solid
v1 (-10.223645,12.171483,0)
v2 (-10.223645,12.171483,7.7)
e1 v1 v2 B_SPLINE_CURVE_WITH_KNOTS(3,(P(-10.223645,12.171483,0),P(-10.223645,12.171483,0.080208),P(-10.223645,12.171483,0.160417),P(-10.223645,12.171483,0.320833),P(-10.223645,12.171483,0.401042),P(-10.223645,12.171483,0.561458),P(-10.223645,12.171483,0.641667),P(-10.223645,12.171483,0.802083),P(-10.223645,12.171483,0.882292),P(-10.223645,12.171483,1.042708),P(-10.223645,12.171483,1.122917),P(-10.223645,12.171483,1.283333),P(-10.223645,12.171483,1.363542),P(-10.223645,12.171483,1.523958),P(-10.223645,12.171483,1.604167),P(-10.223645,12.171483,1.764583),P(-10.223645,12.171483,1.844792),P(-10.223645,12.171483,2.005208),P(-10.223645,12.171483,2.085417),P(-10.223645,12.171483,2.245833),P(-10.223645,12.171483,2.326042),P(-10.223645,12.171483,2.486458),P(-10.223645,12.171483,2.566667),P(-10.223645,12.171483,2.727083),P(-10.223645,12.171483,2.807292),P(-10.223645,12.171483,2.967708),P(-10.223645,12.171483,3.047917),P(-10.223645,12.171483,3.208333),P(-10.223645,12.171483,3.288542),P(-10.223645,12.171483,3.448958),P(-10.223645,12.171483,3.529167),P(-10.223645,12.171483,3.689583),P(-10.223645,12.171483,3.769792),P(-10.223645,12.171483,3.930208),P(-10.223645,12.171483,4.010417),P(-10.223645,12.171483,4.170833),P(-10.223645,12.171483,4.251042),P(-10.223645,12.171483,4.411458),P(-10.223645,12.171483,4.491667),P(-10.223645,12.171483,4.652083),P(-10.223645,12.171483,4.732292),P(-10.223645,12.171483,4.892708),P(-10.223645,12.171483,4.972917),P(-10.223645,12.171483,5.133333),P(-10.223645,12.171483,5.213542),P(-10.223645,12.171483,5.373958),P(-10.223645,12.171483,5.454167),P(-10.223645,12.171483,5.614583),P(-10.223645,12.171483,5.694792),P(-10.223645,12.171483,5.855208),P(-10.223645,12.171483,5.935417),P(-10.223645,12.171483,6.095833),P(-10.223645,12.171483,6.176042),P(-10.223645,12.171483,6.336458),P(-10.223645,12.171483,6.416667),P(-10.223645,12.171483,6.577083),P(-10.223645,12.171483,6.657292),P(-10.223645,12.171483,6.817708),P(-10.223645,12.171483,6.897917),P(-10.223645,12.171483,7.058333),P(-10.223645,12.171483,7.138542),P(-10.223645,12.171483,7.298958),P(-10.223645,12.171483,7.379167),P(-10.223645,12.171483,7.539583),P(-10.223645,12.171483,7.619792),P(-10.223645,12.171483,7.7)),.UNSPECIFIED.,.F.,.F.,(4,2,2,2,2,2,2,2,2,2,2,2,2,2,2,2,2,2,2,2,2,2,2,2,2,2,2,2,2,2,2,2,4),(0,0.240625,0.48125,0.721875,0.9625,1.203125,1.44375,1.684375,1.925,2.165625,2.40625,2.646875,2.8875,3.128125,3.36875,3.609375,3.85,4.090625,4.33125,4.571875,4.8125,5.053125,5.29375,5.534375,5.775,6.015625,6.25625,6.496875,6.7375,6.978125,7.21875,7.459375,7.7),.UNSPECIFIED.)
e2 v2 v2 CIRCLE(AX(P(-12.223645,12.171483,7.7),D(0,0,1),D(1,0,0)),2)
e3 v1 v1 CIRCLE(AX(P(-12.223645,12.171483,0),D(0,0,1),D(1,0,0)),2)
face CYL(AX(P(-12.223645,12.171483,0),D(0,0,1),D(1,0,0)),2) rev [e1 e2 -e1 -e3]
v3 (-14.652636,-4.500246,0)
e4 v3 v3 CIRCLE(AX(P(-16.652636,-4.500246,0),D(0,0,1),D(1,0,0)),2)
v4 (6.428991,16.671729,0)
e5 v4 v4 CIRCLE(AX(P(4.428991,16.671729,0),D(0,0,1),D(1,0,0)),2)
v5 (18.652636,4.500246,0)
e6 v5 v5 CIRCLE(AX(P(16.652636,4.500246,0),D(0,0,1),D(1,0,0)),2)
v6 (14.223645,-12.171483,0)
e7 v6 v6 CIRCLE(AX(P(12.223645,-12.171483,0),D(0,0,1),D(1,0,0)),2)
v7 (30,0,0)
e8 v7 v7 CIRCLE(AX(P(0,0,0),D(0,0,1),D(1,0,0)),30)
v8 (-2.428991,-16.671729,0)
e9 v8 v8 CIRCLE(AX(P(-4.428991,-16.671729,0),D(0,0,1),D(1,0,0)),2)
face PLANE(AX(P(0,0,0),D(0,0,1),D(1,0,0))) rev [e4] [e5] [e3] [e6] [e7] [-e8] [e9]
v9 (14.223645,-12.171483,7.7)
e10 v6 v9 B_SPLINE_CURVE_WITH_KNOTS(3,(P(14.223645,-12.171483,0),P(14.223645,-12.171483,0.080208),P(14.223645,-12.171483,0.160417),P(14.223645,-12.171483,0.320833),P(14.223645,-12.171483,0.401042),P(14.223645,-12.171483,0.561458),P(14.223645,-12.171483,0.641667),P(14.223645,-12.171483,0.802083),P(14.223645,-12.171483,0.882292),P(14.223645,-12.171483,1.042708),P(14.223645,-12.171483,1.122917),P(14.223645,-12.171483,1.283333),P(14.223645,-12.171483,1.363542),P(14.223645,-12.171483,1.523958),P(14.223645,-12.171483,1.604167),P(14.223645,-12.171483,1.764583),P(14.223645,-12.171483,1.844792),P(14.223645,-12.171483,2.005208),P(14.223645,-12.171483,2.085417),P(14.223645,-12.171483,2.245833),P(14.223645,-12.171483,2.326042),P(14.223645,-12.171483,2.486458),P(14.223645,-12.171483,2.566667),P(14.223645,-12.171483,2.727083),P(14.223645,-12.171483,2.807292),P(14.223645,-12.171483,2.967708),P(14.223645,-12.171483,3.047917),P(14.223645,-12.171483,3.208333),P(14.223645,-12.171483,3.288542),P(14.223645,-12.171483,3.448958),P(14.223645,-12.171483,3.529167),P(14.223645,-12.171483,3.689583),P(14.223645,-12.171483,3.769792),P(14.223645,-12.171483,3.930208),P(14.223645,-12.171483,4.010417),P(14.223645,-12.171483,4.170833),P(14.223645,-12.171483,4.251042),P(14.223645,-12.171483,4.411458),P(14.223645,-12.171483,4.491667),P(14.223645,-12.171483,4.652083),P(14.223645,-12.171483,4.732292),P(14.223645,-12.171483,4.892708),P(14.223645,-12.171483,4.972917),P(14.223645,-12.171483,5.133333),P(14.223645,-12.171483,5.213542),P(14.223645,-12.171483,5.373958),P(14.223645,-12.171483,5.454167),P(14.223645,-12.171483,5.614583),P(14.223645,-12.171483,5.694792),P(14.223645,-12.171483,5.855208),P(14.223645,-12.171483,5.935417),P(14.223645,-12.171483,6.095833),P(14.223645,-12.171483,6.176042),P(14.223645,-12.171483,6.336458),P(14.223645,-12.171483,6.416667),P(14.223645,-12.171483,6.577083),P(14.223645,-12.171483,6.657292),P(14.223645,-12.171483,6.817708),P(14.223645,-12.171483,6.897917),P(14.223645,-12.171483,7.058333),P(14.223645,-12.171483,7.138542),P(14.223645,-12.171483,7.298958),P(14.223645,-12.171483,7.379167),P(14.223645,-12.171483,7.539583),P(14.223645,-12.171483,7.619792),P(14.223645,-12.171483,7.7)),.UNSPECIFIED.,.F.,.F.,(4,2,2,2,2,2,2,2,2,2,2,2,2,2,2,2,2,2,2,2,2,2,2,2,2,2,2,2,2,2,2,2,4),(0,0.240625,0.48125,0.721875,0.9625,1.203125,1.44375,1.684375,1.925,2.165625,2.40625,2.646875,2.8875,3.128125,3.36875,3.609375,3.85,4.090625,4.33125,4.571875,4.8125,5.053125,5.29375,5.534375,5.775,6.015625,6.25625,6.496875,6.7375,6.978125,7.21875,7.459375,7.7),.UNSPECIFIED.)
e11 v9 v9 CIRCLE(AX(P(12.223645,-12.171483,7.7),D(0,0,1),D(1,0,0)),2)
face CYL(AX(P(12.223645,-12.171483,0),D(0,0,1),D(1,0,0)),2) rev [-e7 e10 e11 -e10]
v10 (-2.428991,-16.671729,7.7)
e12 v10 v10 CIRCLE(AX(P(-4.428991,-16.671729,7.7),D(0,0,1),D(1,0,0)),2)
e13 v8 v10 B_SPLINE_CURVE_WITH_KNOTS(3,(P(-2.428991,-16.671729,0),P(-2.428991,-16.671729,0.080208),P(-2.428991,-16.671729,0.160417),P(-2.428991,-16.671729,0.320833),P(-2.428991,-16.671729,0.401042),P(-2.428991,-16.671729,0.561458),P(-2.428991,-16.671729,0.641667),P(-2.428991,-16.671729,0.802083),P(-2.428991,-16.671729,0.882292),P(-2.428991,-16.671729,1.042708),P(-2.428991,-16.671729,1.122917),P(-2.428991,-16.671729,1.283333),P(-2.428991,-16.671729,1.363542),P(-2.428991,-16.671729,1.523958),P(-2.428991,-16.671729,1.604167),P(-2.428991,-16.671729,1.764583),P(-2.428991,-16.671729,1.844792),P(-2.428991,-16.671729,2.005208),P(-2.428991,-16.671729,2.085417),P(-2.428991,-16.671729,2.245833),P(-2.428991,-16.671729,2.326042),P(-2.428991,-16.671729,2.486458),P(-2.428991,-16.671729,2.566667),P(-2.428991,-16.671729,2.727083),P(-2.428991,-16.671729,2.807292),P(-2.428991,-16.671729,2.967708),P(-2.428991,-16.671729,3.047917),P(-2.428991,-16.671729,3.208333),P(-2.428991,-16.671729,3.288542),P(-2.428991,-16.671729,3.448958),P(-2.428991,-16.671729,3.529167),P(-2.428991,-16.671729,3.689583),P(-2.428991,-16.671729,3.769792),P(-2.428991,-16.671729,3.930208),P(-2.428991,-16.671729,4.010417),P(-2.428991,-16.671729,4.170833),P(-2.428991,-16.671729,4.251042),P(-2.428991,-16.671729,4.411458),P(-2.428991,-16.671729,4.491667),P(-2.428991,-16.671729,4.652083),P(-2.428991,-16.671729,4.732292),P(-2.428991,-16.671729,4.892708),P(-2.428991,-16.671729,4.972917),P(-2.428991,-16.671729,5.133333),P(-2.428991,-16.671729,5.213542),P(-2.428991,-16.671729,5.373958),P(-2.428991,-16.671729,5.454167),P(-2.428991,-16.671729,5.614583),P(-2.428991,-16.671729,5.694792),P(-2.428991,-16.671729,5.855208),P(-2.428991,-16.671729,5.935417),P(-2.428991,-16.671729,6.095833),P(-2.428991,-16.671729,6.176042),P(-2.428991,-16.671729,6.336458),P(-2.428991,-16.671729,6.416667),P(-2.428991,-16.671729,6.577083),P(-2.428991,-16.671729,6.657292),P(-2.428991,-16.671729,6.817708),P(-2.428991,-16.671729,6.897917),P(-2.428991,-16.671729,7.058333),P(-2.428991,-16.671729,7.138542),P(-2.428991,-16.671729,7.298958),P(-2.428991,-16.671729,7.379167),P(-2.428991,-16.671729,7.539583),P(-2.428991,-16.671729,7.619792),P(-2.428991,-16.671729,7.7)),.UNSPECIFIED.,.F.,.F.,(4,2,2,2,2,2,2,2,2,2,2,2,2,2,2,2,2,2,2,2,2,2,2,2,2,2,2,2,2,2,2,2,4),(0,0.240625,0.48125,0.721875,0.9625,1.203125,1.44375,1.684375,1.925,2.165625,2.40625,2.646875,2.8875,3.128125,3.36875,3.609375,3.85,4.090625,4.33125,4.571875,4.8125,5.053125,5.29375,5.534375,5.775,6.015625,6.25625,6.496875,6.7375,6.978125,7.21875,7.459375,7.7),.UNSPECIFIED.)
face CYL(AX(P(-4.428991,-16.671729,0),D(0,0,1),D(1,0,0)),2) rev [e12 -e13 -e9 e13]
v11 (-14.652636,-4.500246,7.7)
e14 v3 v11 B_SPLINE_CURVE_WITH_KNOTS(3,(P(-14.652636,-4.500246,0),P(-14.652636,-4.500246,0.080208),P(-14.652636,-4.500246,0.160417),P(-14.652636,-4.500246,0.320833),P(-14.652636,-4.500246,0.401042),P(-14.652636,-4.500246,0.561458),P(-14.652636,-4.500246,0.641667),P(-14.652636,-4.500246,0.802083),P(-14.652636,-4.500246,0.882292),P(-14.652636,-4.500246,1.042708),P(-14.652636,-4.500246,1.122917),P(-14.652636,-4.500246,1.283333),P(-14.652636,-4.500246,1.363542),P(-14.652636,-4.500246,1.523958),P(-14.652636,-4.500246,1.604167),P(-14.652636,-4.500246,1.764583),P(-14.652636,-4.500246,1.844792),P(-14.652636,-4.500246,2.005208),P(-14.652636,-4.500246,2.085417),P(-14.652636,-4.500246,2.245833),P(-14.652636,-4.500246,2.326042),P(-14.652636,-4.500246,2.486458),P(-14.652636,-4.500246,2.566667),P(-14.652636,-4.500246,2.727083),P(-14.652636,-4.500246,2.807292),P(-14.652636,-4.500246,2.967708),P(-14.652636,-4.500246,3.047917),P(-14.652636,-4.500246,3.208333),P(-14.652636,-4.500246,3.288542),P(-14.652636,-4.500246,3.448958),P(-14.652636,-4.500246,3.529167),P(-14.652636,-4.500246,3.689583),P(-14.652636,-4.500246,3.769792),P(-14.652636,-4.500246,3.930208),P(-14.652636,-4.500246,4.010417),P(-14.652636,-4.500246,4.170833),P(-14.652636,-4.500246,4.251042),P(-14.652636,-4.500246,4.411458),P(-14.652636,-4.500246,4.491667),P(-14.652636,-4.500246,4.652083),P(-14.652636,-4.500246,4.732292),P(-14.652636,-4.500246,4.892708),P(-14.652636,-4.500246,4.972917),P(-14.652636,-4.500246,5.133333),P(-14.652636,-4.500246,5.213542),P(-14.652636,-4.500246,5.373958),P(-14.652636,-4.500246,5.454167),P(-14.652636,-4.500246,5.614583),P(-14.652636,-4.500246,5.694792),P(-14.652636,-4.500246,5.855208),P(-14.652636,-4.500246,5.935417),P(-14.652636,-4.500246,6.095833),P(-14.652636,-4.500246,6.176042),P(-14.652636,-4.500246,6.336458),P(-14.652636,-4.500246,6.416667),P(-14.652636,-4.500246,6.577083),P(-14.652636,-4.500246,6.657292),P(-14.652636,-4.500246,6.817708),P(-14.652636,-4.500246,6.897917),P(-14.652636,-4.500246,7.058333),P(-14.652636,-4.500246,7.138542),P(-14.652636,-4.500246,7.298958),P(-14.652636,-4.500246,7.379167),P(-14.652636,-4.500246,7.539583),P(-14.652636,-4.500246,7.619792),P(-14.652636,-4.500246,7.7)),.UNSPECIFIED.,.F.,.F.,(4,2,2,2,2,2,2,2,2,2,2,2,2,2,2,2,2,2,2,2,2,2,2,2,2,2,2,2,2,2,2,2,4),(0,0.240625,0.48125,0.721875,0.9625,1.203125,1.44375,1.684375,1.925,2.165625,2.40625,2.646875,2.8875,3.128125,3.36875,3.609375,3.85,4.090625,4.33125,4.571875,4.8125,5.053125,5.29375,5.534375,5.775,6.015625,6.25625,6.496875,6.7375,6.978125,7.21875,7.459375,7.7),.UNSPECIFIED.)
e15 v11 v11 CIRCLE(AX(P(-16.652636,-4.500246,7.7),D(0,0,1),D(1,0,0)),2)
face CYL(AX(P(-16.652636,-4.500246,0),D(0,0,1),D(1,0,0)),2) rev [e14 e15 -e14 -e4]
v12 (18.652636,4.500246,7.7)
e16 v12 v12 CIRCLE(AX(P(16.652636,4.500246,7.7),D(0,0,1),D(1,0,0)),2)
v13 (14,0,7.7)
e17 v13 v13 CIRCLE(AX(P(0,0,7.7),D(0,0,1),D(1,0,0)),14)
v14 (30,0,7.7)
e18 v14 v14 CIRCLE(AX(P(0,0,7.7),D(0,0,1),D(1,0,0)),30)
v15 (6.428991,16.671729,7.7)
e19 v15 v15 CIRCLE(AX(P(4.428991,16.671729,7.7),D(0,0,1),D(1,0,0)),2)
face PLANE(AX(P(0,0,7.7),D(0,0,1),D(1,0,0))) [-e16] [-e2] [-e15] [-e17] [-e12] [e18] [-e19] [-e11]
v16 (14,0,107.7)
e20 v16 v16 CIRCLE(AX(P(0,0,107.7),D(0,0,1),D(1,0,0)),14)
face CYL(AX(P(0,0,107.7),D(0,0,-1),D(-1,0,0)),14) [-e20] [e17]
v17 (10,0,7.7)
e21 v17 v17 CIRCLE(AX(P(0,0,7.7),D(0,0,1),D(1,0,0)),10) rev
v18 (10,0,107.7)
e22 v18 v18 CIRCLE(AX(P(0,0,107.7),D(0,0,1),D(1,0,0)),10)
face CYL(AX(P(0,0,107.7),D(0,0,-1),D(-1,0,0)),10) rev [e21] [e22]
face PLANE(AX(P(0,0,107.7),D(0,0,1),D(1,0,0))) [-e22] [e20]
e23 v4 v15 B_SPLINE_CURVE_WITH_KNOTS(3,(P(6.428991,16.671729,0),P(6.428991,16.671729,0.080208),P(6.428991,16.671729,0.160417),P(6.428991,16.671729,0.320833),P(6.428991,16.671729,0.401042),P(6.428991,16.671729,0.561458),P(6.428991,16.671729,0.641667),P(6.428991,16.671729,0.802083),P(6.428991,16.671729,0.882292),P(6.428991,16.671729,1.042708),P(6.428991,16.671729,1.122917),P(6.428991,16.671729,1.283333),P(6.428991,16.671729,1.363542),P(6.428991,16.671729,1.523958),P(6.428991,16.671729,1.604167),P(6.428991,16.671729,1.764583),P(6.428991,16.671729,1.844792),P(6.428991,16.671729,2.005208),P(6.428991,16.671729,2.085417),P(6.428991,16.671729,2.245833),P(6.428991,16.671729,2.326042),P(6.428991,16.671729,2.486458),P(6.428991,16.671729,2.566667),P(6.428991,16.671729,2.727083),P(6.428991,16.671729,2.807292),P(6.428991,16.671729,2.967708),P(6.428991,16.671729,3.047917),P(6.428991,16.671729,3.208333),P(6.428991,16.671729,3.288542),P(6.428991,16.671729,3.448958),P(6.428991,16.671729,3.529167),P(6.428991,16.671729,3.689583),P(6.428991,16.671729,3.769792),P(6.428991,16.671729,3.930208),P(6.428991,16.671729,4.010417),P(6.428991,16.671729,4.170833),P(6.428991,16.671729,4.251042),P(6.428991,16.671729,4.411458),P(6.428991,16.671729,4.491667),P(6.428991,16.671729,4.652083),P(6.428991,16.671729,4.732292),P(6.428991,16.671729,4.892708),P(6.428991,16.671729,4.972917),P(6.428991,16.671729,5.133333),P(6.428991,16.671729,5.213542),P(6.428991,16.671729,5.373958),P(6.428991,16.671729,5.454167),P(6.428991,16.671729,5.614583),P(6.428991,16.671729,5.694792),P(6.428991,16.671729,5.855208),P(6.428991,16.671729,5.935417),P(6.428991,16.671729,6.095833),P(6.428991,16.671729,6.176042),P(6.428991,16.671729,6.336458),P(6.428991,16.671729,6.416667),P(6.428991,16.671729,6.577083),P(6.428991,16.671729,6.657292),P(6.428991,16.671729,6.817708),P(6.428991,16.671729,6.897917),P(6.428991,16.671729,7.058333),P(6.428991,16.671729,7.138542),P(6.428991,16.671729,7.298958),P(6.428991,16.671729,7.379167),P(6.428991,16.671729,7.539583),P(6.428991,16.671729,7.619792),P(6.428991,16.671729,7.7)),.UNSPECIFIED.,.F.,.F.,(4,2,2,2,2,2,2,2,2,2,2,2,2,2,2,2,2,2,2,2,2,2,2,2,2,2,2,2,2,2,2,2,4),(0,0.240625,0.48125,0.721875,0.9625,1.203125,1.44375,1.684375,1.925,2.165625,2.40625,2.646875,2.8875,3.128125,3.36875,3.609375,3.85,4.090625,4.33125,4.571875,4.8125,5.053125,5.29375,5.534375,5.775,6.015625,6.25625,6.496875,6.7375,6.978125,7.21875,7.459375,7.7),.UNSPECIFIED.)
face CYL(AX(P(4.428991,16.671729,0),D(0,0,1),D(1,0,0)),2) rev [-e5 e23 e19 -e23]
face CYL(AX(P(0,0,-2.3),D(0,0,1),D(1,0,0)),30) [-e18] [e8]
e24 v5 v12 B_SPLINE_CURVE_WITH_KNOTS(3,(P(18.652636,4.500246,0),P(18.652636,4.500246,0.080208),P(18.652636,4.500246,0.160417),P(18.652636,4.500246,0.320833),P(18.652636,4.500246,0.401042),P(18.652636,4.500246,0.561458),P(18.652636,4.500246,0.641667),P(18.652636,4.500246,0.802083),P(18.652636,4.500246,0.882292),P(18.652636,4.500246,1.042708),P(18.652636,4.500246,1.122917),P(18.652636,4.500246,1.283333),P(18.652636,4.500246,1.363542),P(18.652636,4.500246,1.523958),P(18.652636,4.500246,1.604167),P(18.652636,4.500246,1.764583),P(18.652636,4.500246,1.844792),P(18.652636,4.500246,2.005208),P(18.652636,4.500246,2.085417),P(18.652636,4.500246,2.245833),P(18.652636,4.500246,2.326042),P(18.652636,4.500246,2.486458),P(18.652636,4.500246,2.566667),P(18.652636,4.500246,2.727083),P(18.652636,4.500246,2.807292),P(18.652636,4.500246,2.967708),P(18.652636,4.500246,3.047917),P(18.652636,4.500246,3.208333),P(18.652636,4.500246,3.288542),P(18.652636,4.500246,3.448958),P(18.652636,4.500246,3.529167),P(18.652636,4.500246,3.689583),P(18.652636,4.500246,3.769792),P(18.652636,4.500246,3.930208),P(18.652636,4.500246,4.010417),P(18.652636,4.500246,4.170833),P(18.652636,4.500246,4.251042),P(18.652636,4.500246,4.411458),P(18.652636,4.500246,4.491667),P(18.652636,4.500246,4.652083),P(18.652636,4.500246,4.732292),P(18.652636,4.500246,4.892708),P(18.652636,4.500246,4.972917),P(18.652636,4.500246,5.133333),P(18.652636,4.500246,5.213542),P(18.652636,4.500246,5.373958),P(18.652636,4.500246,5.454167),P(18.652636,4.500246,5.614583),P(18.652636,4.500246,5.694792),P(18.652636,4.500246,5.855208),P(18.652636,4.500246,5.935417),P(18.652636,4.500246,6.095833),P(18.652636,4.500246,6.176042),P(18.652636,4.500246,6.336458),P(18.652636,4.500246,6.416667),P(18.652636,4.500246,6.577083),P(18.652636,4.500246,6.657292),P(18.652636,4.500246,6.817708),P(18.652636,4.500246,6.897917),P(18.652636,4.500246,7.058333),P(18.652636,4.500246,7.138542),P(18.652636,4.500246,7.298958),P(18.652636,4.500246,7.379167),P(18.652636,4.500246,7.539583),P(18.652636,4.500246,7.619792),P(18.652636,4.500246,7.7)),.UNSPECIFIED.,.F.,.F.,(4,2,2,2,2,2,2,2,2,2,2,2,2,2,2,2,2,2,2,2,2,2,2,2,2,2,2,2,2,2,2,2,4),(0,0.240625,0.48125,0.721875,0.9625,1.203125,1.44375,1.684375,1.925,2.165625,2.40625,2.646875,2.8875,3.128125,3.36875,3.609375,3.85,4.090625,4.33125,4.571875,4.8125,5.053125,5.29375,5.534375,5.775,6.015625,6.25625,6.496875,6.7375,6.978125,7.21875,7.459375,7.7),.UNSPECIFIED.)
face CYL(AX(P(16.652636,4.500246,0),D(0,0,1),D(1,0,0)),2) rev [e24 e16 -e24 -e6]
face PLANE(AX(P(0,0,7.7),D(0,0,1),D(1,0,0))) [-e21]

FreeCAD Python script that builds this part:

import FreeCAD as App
import Part
import Sketcher

V = App.Vector
Q = App.Units.Quantity

doc = App.newDocument("Part")
body = doc.addObject("PartDesign::Body", "Body")

sketch1 = body.newObject("Sketcher::SketchObject", "Sketch")
sketch1.AttachmentSupport = (doc.getObject("XY_Plane"), [""])
sketch1.MapMode = "FlatFace"
sketch1.addGeometry(Part.Circle(V(0, 0, 0), V(0, 0, 1), 50), False)
sketch1.addConstraint([
    Sketcher.Constraint("Coincident", 0, 3, -1, 1),
    Sketcher.Constraint("Diameter", 0, Q("100 mm")),
])
pad1 = body.newObject("PartDesign::Pad", "Pad")
pad1.Profile = sketch1
pad1.Length = 7.7

sketch2 = body.newObject("Sketcher::SketchObject", "Sketch001")
sketch2.AttachmentSupport = (doc.getObject("XY_Plane"), [""])
sketch2.MapMode = "FlatFace"
sketch2.AttachmentOffset = App.Placement(V(0, 0, 7.7), App.Rotation())
sketch2.addGeometry([
    Part.Circle(V(4.428991, 16.671729, 0), V(0, 0, 1), 2),
    Part.Circle(V(16.652636, 4.500246, 0), V(0, 0, 1), 2),
    Part.Circle(V(12.223645, -12.171483, 0), V(0, 0, 1), 2),
    Part.Circle(V(-4.428991, -16.671729, 0), V(0, 0, 1), 2),
    Part.Circle(V(-16.652636, -4.500246, 0), V(0, 0, 1), 2),
    Part.Circle(V(-12.223645, 12.171483, 0), V(0, 0, 1), 2),
], False)
sketch2.addConstraint([
    Sketcher.Constraint("Equal", 0, 1),
    Sketcher.Constraint("Equal", 1, 2),
    Sketcher.Constraint("Equal", 2, 3),
    Sketcher.Constraint("Equal", 3, 4),
    Sketcher.Constraint("Equal", 4, 5),
    Sketcher.Constraint("Symmetric", 0, 3, 3, 3, -1, 1),
    Sketcher.Constraint("Symmetric", 1, 3, 4, 3, -1, 1),
    Sketcher.Constraint("Symmetric", 2, 3, 5, 3, -1, 1),
    Sketcher.Constraint("Diameter", 0, Q("4 mm")),
    Sketcher.Constraint("DistanceX", -1, 1, 0, 3, Q("4.428991 mm")),
    Sketcher.Constraint("DistanceY", -1, 1, 0, 3, Q("16.671729 mm")),
    Sketcher.Constraint("DistanceX", 2, 3, 1, 3, Q("4.428991 mm")),
    Sketcher.Constraint("DistanceY", 2, 3, 1, 3, Q("16.671729 mm")),
    Sketcher.Constraint("DistanceY", 2, 3, 0, 3, Q("28.843212 mm")),
    Sketcher.Constraint("DistanceX", 4, 3, 2, 3, Q("28.876281 mm")),
])
pocket1 = body.newObject("PartDesign::Pocket", "Pocket")
pocket1.Profile = sketch2
pocket1.Length = 7.7

sketch3 = body.newObject("Sketcher::SketchObject", "Sketch002")
sketch3.AttachmentSupport = (doc.getObject("XY_Plane"), [""])
sketch3.MapMode = "FlatFace"
sketch3.AttachmentOffset = App.Placement(V(0, 0, 7.7), App.Rotation())
sketch3.addGeometry([
    Part.Circle(V(0, 0, 0), V(0, 0, 1), 14),
    Part.Circle(V(0, 0, 0), V(0, 0, 1), 10),
], False)
sketch3.addConstraint([
    Sketcher.Constraint("Coincident", 0, 3, -1, 1),
    Sketcher.Constraint("Coincident", 1, 3, -1, 1),
    Sketcher.Constraint("Diameter", 0, Q("28 mm")),
    Sketcher.Constraint("Diameter", 1, Q("20 mm")),
])
pad2 = body.newObject("PartDesign::Pad", "Pad001")
pad2.Profile = sketch3
pad2.Length = 100

sketch4 = body.newObject("Sketcher::SketchObject", "Sketch003")
sketch4.AttachmentSupport = (doc.getObject("XY_Plane"), [""])
sketch4.MapMode = "FlatFace"
sketch4.AttachmentOffset = App.Placement(V(0, 0, 7.7), App.Rotation())
sketch4.addGeometry([
    Part.Circle(V(0, 0, 0), V(0, 0, 1), 74),
    Part.Circle(V(0, 0, 0), V(0, 0, 1), 30),
], False)
sketch4.addConstraint([
    Sketcher.Constraint("Coincident", 0, 3, -1, 1),
    Sketcher.Constraint("Coincident", 1, 3, -1, 1),
    Sketcher.Constraint("Diameter", 0, Q("148 mm")),
    Sketcher.Constraint("Diameter", 1, Q("60 mm")),
])
pocket2 = body.newObject("PartDesign::Pocket", "Pocket001")
pocket2.Profile = sketch4
pocket2.Length = 10

doc.recompute()
